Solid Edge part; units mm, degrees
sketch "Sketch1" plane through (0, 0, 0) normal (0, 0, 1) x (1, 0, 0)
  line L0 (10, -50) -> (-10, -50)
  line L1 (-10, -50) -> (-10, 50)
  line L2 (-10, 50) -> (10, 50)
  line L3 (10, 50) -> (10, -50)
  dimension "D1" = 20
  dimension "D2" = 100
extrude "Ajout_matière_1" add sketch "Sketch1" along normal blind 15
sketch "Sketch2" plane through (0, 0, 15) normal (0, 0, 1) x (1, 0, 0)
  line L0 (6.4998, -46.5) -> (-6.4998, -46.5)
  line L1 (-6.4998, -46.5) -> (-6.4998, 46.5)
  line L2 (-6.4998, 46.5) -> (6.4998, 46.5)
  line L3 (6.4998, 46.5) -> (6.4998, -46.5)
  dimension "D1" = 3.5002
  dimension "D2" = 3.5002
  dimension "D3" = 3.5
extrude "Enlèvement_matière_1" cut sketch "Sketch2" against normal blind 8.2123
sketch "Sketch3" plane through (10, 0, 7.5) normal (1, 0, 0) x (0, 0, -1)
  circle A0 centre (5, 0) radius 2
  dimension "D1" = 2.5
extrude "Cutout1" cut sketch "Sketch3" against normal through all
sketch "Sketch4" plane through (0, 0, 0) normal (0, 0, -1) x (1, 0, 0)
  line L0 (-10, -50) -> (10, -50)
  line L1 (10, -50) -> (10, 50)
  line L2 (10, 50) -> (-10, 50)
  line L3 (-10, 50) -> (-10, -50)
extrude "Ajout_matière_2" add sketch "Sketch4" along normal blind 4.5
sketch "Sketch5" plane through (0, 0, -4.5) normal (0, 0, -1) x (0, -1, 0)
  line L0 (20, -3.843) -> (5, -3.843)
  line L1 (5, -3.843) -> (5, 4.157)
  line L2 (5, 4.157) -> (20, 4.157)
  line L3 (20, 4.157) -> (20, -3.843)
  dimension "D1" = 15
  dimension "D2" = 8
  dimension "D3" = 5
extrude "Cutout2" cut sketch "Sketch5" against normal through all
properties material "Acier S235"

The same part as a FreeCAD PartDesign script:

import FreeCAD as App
import Part
import Sketcher

V = App.Vector
Q = App.Units.Quantity


def add_polygon(sketch, points):
    """Adds a closed chain of lines whose ends are joined by coincident constraints."""
    first, n = sketch.GeometryCount, len(points)
    for a, b in zip(points, points[1:] + points[:1]):
        sketch.addGeometry(Part.LineSegment(App.Vector(*a, 0), App.Vector(*b, 0)), False)
    for i in range(n):
        sketch.addConstraint(Sketcher.Constraint("Coincident", first + i, 2, first + (i + 1) % n, 1))

doc = App.newDocument("Part")
body = doc.addObject("PartDesign::Body", "Body")

sketch1 = body.newObject("Sketcher::SketchObject", "Sketch")
sketch1.AttachmentSupport = (doc.getObject("XY_Plane"), [""])
sketch1.MapMode = "FlatFace"
add_polygon(sketch1, [(-10, -50), (10, -50), (10, 50), (-10, 50)])
sketch1.addConstraint(Sketcher.Constraint("Horizontal", 0))
sketch1.addConstraint(Sketcher.Constraint("Vertical", 1))
sketch1.addConstraint(Sketcher.Constraint("Horizontal", 2))
sketch1.addConstraint(Sketcher.Constraint("Vertical", 3))
sketch1.addConstraint(Sketcher.Constraint("Symmetric", 0, 2, 2, 2, -1, 1))
sketch1.addConstraint(Sketcher.Constraint("DistanceX", -1, 1, 0, 2, Q("10 mm")))
sketch1.addConstraint(Sketcher.Constraint("DistanceY", 1, 1, 1, 2, Q("100 mm")))
pad1 = body.newObject("PartDesign::Pad", "Pad")
pad1.Profile = sketch1
pad1.Length = 15

sketch2 = body.newObject("Sketcher::SketchObject", "Sketch001")
sketch2.AttachmentSupport = (doc.getObject("XY_Plane"), [""])
sketch2.MapMode = "FlatFace"
sketch2.AttachmentOffset = App.Placement(V(0, 0, 15), App.Rotation())
add_polygon(sketch2, [(-6, -46), (6, -46), (6, 46), (-6, 46)])
sketch2.addConstraint(Sketcher.Constraint("Horizontal", 0))
sketch2.addConstraint(Sketcher.Constraint("Vertical", 1))
sketch2.addConstraint(Sketcher.Constraint("Horizontal", 2))
sketch2.addConstraint(Sketcher.Constraint("Vertical", 3))
sketch2.addConstraint(Sketcher.Constraint("Symmetric", 0, 2, 2, 2, -1, 1))
sketch2.addConstraint(Sketcher.Constraint("DistanceY", 1, 1, 1, 2, Q("93 mm")))
sketch2.addConstraint(Sketcher.Constraint("DistanceX", 0, 1, 0, 2, Q("12.9996 mm")))
pocket1 = body.newObject("PartDesign::Pocket", "Pocket")
pocket1.Profile = sketch2
pocket1.Length = 8.2123

sketch3 = body.newObject("Sketcher::SketchObject", "Sketch002")
sketch3.AttachmentSupport = (doc.getObject("YZ_Plane"), [""])
sketch3.MapMode = "FlatFace"
sketch3.AttachmentOffset = App.Placement(V(0, 0, 10), App.Rotation())
sketch3.addGeometry(Part.Circle(V(0, 2.5, 0), V(0, 0, 1), 2), False)
sketch3.addConstraint(Sketcher.Constraint("PointOnObject", 0, 3, -2))
sketch3.addConstraint(Sketcher.Constraint("Diameter", 0, Q("4 mm")))
sketch3.addConstraint(Sketcher.Constraint("DistanceY", -1, 1, 0, 3, Q("2.5 mm")))
pocket2 = body.newObject("PartDesign::Pocket", "Pocket001")
pocket2.Profile = sketch3
pocket2.Type = "ThroughAll"

sketch4 = body.newObject("Sketcher::SketchObject", "Sketch003")
sketch4.AttachmentSupport = (doc.getObject("XY_Plane"), [""])
sketch4.MapMode = "FlatFace"
add_polygon(sketch4, [(-10, -50), (-10, 50), (10, 50), (10, -50)])
sketch4.addConstraint(Sketcher.Constraint("Vertical", 0))
sketch4.addConstraint(Sketcher.Constraint("Horizontal", 1))
sketch4.addConstraint(Sketcher.Constraint("Vertical", 2))
sketch4.addConstraint(Sketcher.Constraint("Horizontal", 3))
sketch4.addConstraint(Sketcher.Constraint("Symmetric", 0, 2, 2, 2, -1, 1))
sketch4.addConstraint(Sketcher.Constraint("DistanceX", 1, 1, 1, 2, Q("20 mm")))
sketch4.addConstraint(Sketcher.Constraint("DistanceY", 0, 1, 0, 2, Q("100 mm")))
pad2 = body.newObject("PartDesign::Pad", "Pad001")
pad2.Profile = sketch4
pad2.Length = 4.5
pad2.Reversed = True

sketch5 = body.newObject("Sketcher::SketchObject", "Sketch004")
sketch5.AttachmentSupport = (doc.getObject("XY_Plane"), [""])
sketch5.MapMode = "FlatFace"
sketch5.AttachmentOffset = App.Placement(V(0, 0, -4.5), App.Rotation())
add_polygon(sketch5, [(4, -5), (4, -20), (-4, -20), (-4, -5)])
sketch5.addConstraint(Sketcher.Constraint("Vertical", 0))
sketch5.addConstraint(Sketcher.Constraint("Horizontal", 1))
sketch5.addConstraint(Sketcher.Constraint("Vertical", 2))
sketch5.addConstraint(Sketcher.Constraint("Horizontal", 3))
sketch5.addConstraint(Sketcher.Constraint("DistanceY", 0, 2, -1, 1, Q("20 mm")))
sketch5.addConstraint(Sketcher.Constraint("DistanceY", 2, 2, -1, 1, Q("5 mm")))
sketch5.addConstraint(Sketcher.Constraint("DistanceX", 1, 2, 1, 1, Q("8 mm")))
sketch5.addConstraint(Sketcher.Constraint("DistanceX", -1, 1, 0, 2, Q("3.843 mm")))
pocket3 = body.newObject("PartDesign::Pocket", "Pocket002")
pocket3.Profile = sketch5
pocket3.Type = "ThroughAll"
pocket3.Reversed = True

doc.recompute()
